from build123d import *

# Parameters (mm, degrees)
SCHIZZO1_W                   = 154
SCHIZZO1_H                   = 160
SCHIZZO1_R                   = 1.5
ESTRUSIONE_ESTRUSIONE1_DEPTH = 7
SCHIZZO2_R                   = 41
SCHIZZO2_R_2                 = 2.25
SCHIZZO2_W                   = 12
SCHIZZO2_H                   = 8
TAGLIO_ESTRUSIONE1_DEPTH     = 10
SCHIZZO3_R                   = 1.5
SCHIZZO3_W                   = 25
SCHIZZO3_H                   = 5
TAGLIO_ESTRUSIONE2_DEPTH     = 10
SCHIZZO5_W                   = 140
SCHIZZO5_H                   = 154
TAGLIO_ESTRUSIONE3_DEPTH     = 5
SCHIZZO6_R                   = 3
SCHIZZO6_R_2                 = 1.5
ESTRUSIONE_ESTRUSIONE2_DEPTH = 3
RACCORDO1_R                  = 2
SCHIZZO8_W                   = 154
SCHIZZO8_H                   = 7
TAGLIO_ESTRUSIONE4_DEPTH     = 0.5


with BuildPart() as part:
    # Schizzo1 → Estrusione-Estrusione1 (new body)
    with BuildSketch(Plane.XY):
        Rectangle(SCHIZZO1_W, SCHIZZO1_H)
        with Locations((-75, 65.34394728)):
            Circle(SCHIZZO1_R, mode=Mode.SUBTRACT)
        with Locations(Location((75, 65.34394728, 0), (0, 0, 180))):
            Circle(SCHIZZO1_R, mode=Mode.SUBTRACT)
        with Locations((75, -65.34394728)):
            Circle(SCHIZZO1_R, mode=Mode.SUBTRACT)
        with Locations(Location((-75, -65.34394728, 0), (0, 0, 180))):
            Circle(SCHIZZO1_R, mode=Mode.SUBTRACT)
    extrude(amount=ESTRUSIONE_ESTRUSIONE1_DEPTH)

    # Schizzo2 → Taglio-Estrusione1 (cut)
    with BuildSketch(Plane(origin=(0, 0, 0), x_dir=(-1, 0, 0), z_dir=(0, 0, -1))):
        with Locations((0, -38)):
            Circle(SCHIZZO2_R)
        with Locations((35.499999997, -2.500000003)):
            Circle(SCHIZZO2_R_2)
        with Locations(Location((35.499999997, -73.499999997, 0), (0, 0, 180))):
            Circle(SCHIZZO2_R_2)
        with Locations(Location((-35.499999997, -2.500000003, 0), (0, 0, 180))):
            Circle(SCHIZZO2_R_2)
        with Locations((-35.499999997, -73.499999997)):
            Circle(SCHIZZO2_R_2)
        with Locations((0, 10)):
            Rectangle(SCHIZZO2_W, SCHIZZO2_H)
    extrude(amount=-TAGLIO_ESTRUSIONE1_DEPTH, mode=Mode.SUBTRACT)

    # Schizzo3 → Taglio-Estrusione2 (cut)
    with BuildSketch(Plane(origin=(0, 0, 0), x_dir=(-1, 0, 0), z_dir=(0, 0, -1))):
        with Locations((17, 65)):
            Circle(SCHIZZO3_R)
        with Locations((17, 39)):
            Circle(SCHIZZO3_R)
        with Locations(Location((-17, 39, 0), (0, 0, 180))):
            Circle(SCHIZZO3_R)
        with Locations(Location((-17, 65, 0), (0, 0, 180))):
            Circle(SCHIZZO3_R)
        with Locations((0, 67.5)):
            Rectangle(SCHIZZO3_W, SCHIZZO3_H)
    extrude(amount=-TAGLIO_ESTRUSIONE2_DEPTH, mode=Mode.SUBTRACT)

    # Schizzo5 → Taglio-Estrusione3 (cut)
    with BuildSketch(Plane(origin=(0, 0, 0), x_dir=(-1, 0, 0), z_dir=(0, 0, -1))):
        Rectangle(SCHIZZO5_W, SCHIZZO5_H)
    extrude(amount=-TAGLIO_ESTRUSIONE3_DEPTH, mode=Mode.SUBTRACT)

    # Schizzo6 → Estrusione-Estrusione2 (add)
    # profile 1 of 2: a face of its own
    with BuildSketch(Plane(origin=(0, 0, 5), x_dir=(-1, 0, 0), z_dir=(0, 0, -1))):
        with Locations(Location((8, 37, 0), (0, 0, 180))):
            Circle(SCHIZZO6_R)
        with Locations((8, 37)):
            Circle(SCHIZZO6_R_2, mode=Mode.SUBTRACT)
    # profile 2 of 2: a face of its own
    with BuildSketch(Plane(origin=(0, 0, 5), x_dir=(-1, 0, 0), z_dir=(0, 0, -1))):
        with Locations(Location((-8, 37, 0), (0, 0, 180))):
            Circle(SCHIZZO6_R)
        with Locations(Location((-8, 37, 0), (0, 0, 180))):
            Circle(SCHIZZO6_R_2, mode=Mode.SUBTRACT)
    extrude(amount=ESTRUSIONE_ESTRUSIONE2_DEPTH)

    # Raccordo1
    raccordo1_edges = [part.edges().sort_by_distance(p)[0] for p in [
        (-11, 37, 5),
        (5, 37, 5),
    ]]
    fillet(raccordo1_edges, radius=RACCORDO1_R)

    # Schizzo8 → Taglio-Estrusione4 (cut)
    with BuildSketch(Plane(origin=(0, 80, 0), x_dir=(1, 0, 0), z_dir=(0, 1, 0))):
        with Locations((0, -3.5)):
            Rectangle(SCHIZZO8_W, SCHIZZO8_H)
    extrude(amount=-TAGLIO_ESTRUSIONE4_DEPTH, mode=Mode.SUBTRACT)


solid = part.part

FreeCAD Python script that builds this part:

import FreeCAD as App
import Part
import Sketcher

V = App.Vector


def edges_at(feature, points):
    """Names of the edges that pass closest to the given points."""
    edges = feature.Shape.Edges
    near = lambda p: min(range(len(edges)), key=lambda i: edges[i].distToShape(Part.Vertex(*p))[0])
    return sorted({f"Edge{near(p) + 1}" for p in points})

doc = App.newDocument("Part")
body = doc.addObject("PartDesign::Body", "Body")

sketch1 = doc.addObject("Sketcher::SketchObject", "Sketch")
body.addObject(sketch1)
sketch1.AttachmentSupport = (doc.XY_Plane, [""])
sketch1.MapMode = "FlatFace"
sketch1.addGeometry([
    Part.LineSegment(V(-77, 80, 0), V(-77, -80, 0)),
    Part.LineSegment(V(-77, -80, 0), V(77, -80, 0)),
    Part.LineSegment(V(77, -80, 0), V(77, 80, 0)),
    Part.LineSegment(V(77, 80, 0), V(-77, 80, 0)),
    Part.Circle(V(-75, -65.343947, 0), V(0, 0, 1), 1.5),
    Part.Circle(V(75, -65.343947, 0), V(0, 0, 1), 1.5),
    Part.Circle(V(-75, 65.343947, 0), V(0, 0, 1), 1.5),
    Part.Circle(V(75, 65.343947, 0), V(0, 0, 1), 1.5),
], False)
sketch1.addConstraint([
    Sketcher.Constraint("Coincident", 0, 2, 1, 1),
    Sketcher.Constraint("Coincident", 1, 2, 2, 1),
    Sketcher.Constraint("Coincident", 2, 2, 3, 1),
    Sketcher.Constraint("Coincident", 3, 2, 0, 1),
    Sketcher.Constraint("Vertical", 0),
    Sketcher.Constraint("Horizontal", 1),
    Sketcher.Constraint("Vertical", 2),
    Sketcher.Constraint("Horizontal", 3),
    Sketcher.Constraint("Equal", 4, 5),
    Sketcher.Constraint("Equal", 5, 6),
    Sketcher.Constraint("Equal", 6, 7),
    Sketcher.Constraint("Symmetric", 5, 3, 6, 3, -1, 1),
    Sketcher.Constraint("Symmetric", 4, 3, 7, 3, -1, 1),
    Sketcher.Constraint("Symmetric", 0, 2, 2, 2, -1, 1),
    Sketcher.Constraint("Symmetric", 4, 3, 5, 3, -2),
    Sketcher.Constraint("Diameter", 4, 3.0),
    Sketcher.Constraint("DistanceX", 1, 1, 1, 2, 154.0),
    Sketcher.Constraint("DistanceY", 0, 2, 0, 1, 160.0),
    Sketcher.Constraint("DistanceX", 4, 3, -1, 1, 75.0),
    Sketcher.Constraint("DistanceY", 4, 3, -1, 1, 65.343947),
])
pad1 = doc.addObject("PartDesign::Pad", "Pad")
body.addObject(pad1)
pad1.Profile = sketch1
pad1.Length = 7

sketch2 = doc.addObject("Sketcher::SketchObject", "Sketch001")
body.addObject(sketch2)
sketch2.AttachmentSupport = (doc.XY_Plane, [""])
sketch2.MapMode = "FlatFace"
sketch2.addGeometry([
    Part.Circle(V(0, -38, 0), V(0, 0, 1), 41),
    Part.Circle(V(-35.5, -2.5, 0), V(0, 0, 1), 2.25),
    Part.Circle(V(-35.5, -73.5, 0), V(0, 0, 1), 2.25),
    Part.Circle(V(35.5, -2.5, 0), V(0, 0, 1), 2.25),
    Part.Circle(V(35.5, -73.5, 0), V(0, 0, 1), 2.25),
    Part.LineSegment(V(6, 14, 0), V(6, 6, 0)),
    Part.LineSegment(V(6, 6, 0), V(-6, 6, 0)),
    Part.LineSegment(V(-6, 6, 0), V(-6, 14, 0)),
    Part.LineSegment(V(-6, 14, 0), V(6, 14, 0)),
], False)
sketch2.addConstraint([
    Sketcher.Constraint("Coincident", 5, 2, 6, 1),
    Sketcher.Constraint("Coincident", 6, 2, 7, 1),
    Sketcher.Constraint("Coincident", 7, 2, 8, 1),
    Sketcher.Constraint("Coincident", 8, 2, 5, 1),
    Sketcher.Constraint("Vertical", 5),
    Sketcher.Constraint("Horizontal", 6),
    Sketcher.Constraint("Vertical", 7),
    Sketcher.Constraint("Horizontal", 8),
    Sketcher.Constraint("Equal", 1, 2),
    Sketcher.Constraint("Equal", 2, 3),
    Sketcher.Constraint("Equal", 3, 4),
    Sketcher.Constraint("Symmetric", 1, 3, 3, 3, -2),
    Sketcher.Constraint("Symmetric", 2, 3, 4, 3, -2),
    Sketcher.Constraint("PointOnObject", 0, 3, -2),
    Sketcher.Constraint("Vertical", 1, 3, 2, 3),
    Sketcher.Constraint("Diameter", 0, 82.0),
    Sketcher.Constraint("Diameter", 1, 4.5),
    Sketcher.Constraint("DistanceX", 6, 2, 6, 1, 12.0),
    Sketcher.Constraint("DistanceY", 5, 2, 5, 1, 8.0),
    Sketcher.Constraint("DistanceY", 0, 3, -1, 1, 38.0),
    Sketcher.Constraint("DistanceX", -1, 1, 5, 2, 6.0),
    Sketcher.Constraint("DistanceY", -1, 1, 5, 2, 6.0),
    Sketcher.Constraint("DistanceY", 2, 3, 1, 3, 71.0),
    Sketcher.Constraint("DistanceX", 1, 3, 3, 3, 71.0),
    Sketcher.Constraint("DistanceY", 1, 3, -1, 1, 2.5),
])
pocket1 = doc.addObject("PartDesign::Pocket", "Pocket")
body.addObject(pocket1)
pocket1.Profile = sketch2
pocket1.Length = 10
pocket1.Reversed = True

sketch3 = doc.addObject("Sketcher::SketchObject", "Sketch002")
body.addObject(sketch3)
sketch3.AttachmentSupport = (doc.XY_Plane, [""])
sketch3.MapMode = "FlatFace"
sketch3.addGeometry([
    Part.Circle(V(-17, 65, 0), V(0, 0, 1), 1.5),
    Part.Circle(V(-17, 39, 0), V(0, 0, 1), 1.5),
    Part.Circle(V(17, 39, 0), V(0, 0, 1), 1.5),
    Part.Circle(V(17, 65, 0), V(0, 0, 1), 1.5),
    Part.LineSegment(V(12.5, 70, 0), V(12.5, 65, 0)),
    Part.LineSegment(V(12.5, 65, 0), V(-12.5, 65, 0)),
    Part.LineSegment(V(-12.5, 65, 0), V(-12.5, 70, 0)),
    Part.LineSegment(V(-12.5, 70, 0), V(12.5, 70, 0)),
], False)
sketch3.addConstraint([
    Sketcher.Constraint("Coincident", 4, 2, 5, 1),
    Sketcher.Constraint("Coincident", 5, 2, 6, 1),
    Sketcher.Constraint("Coincident", 6, 2, 7, 1),
    Sketcher.Constraint("Coincident", 7, 2, 4, 1),
    Sketcher.Constraint("Vertical", 4),
    Sketcher.Constraint("Horizontal", 5),
    Sketcher.Constraint("Vertical", 6),
    Sketcher.Constraint("Horizontal", 7),
    Sketcher.Constraint("Equal", 0, 1),
    Sketcher.Constraint("Equal", 1, 2),
    Sketcher.Constraint("Equal", 2, 3),
    Sketcher.Constraint("Symmetric", 1, 3, 2, 3, -2),
    Sketcher.Constraint("Symmetric", 0, 3, 3, 3, -2),
    Sketcher.Constraint("Horizontal", 3, 3, 4, 2),
    Sketcher.Constraint("Vertical", 0, 3, 1, 3),
    Sketcher.Constraint("Diameter", 0, 3.0),
    Sketcher.Constraint("DistanceX", 5, 2, 5, 1, 25.0),
    Sketcher.Constraint("DistanceY", 4, 2, 4, 1, 5.0),
    Sketcher.Constraint("DistanceX", 0, 3, -1, 1, 17.0),
    Sketcher.Constraint("DistanceY", -1, 1, 0, 3, 65.0),
    Sketcher.Constraint("DistanceY", -1, 1, 1, 3, 39.0),
    Sketcher.Constraint("DistanceX", -1, 1, 4, 2, 12.5),
])
pocket2 = doc.addObject("PartDesign::Pocket", "Pocket001")
body.addObject(pocket2)
pocket2.Profile = sketch3
pocket2.Length = 10
pocket2.Reversed = True

sketch4 = doc.addObject("Sketcher::SketchObject", "Sketch003")
body.addObject(sketch4)
sketch4.AttachmentSupport = (doc.XY_Plane, [""])
sketch4.MapMode = "FlatFace"
sketch4.addGeometry([
    Part.LineSegment(V(70, 77, 0), V(70, -77, 0)),
    Part.LineSegment(V(70, -77, 0), V(-70, -77, 0)),
    Part.LineSegment(V(-70, -77, 0), V(-70, 77, 0)),
    Part.LineSegment(V(-70, 77, 0), V(70, 77, 0)),
], False)
sketch4.addConstraint([
    Sketcher.Constraint("Coincident", 0, 2, 1, 1),
    Sketcher.Constraint("Coincident", 1, 2, 2, 1),
    Sketcher.Constraint("Coincident", 2, 2, 3, 1),
    Sketcher.Constraint("Coincident", 3, 2, 0, 1),
    Sketcher.Constraint("Vertical", 0),
    Sketcher.Constraint("Horizontal", 1),
    Sketcher.Constraint("Vertical", 2),
    Sketcher.Constraint("Horizontal", 3),
    Sketcher.Constraint("Symmetric", 0, 2, 2, 2, -1, 1),
    Sketcher.Constraint("DistanceX", 1, 2, 1, 1, 140.0),
    Sketcher.Constraint("DistanceY", 0, 2, 0, 1, 154.0),
])
pocket3 = doc.addObject("PartDesign::Pocket", "Pocket002")
body.addObject(pocket3)
pocket3.Profile = sketch4
pocket3.Length = 5
pocket3.Reversed = True

sketch5 = doc.addObject("Sketcher::SketchObject", "Sketch004")
body.addObject(sketch5)
sketch5.AttachmentSupport = (doc.XY_Plane, [""])
sketch5.MapMode = "FlatFace"
sketch5.AttachmentOffset = App.Placement(V(0, 0, 5), App.Rotation())
sketch5.addGeometry([
    Part.Circle(V(-8, 37, 0), V(0, 0, 1), 3),
    Part.Circle(V(-8, 37, 0), V(0, 0, 1), 1.5),
    Part.Circle(V(8, 37, 0), V(0, 0, 1), 3),
    Part.Circle(V(8, 37, 0), V(0, 0, 1), 1.5),
], False)
sketch5.addConstraint([
    Sketcher.Constraint("Coincident", 1, 3, 0, 3),
    Sketcher.Constraint("Coincident", 3, 3, 2, 3),
    Sketcher.Constraint("Equal", 0, 2),
    Sketcher.Constraint("Equal", 1, 3),
    Sketcher.Constraint("Symmetric", 0, 3, 2, 3, -2),
    Sketcher.Constraint("Diameter", 0, 6.0),
    Sketcher.Constraint("Diameter", 1, 3.0),
    Sketcher.Constraint("DistanceX", 0, 3, -1, 1, 8.0),
    Sketcher.Constraint("DistanceY", -1, 1, 0, 3, 37.0),
])
pad2 = doc.addObject("PartDesign::Pad", "Pad001")
body.addObject(pad2)
pad2.Profile = sketch5
pad2.Length = 3
pad2.Reversed = True
doc.recompute()

fillet = doc.addObject("PartDesign::Fillet", "Fillet")
body.addObject(fillet)
fillet.Base = (pad2, edges_at(pad2, [(-11, 37, 5), (5, 37, 5)]))
fillet.Radius = 2

sketch6 = doc.addObject("Sketcher::SketchObject", "Sketch005")
body.addObject(sketch6)
sketch6.AttachmentSupport = (doc.XZ_Plane, [""])
sketch6.MapMode = "FlatFace"
sketch6.AttachmentOffset = App.Placement(V(0, 0, -80), App.Rotation())
sketch6.addGeometry([
    Part.LineSegment(V(-77, 0, 0), V(-77, 7, 0)),
    Part.LineSegment(V(-77, 7, 0), V(77, 7, 0)),
    Part.LineSegment(V(77, 7, 0), V(77, 0, 0)),
    Part.LineSegment(V(77, 0, 0), V(-77, 0, 0)),
], False)
sketch6.addConstraint([
    Sketcher.Constraint("Coincident", 0, 2, 1, 1),
    Sketcher.Constraint("Coincident", 1, 2, 2, 1),
    Sketcher.Constraint("Coincident", 2, 2, 3, 1),
    Sketcher.Constraint("Coincident", 3, 2, 0, 1),
    Sketcher.Constraint("Vertical", 0),
    Sketcher.Constraint("Horizontal", 1),
    Sketcher.Constraint("Vertical", 2),
    Sketcher.Constraint("Horizontal", 3),
    Sketcher.Constraint("Symmetric", 2, 2, 3, 2, -1, 1),
    Sketcher.Constraint("DistanceX", 1, 1, 1, 2, 154.0),
    Sketcher.Constraint("DistanceY", 0, 1, 0, 2, 7.0),
])
pocket4 = doc.addObject("PartDesign::Pocket", "Pocket003")
body.addObject(pocket4)
pocket4.Profile = sketch6
pocket4.Length = 0.5
pocket4.Reversed = True

doc.recompute()
